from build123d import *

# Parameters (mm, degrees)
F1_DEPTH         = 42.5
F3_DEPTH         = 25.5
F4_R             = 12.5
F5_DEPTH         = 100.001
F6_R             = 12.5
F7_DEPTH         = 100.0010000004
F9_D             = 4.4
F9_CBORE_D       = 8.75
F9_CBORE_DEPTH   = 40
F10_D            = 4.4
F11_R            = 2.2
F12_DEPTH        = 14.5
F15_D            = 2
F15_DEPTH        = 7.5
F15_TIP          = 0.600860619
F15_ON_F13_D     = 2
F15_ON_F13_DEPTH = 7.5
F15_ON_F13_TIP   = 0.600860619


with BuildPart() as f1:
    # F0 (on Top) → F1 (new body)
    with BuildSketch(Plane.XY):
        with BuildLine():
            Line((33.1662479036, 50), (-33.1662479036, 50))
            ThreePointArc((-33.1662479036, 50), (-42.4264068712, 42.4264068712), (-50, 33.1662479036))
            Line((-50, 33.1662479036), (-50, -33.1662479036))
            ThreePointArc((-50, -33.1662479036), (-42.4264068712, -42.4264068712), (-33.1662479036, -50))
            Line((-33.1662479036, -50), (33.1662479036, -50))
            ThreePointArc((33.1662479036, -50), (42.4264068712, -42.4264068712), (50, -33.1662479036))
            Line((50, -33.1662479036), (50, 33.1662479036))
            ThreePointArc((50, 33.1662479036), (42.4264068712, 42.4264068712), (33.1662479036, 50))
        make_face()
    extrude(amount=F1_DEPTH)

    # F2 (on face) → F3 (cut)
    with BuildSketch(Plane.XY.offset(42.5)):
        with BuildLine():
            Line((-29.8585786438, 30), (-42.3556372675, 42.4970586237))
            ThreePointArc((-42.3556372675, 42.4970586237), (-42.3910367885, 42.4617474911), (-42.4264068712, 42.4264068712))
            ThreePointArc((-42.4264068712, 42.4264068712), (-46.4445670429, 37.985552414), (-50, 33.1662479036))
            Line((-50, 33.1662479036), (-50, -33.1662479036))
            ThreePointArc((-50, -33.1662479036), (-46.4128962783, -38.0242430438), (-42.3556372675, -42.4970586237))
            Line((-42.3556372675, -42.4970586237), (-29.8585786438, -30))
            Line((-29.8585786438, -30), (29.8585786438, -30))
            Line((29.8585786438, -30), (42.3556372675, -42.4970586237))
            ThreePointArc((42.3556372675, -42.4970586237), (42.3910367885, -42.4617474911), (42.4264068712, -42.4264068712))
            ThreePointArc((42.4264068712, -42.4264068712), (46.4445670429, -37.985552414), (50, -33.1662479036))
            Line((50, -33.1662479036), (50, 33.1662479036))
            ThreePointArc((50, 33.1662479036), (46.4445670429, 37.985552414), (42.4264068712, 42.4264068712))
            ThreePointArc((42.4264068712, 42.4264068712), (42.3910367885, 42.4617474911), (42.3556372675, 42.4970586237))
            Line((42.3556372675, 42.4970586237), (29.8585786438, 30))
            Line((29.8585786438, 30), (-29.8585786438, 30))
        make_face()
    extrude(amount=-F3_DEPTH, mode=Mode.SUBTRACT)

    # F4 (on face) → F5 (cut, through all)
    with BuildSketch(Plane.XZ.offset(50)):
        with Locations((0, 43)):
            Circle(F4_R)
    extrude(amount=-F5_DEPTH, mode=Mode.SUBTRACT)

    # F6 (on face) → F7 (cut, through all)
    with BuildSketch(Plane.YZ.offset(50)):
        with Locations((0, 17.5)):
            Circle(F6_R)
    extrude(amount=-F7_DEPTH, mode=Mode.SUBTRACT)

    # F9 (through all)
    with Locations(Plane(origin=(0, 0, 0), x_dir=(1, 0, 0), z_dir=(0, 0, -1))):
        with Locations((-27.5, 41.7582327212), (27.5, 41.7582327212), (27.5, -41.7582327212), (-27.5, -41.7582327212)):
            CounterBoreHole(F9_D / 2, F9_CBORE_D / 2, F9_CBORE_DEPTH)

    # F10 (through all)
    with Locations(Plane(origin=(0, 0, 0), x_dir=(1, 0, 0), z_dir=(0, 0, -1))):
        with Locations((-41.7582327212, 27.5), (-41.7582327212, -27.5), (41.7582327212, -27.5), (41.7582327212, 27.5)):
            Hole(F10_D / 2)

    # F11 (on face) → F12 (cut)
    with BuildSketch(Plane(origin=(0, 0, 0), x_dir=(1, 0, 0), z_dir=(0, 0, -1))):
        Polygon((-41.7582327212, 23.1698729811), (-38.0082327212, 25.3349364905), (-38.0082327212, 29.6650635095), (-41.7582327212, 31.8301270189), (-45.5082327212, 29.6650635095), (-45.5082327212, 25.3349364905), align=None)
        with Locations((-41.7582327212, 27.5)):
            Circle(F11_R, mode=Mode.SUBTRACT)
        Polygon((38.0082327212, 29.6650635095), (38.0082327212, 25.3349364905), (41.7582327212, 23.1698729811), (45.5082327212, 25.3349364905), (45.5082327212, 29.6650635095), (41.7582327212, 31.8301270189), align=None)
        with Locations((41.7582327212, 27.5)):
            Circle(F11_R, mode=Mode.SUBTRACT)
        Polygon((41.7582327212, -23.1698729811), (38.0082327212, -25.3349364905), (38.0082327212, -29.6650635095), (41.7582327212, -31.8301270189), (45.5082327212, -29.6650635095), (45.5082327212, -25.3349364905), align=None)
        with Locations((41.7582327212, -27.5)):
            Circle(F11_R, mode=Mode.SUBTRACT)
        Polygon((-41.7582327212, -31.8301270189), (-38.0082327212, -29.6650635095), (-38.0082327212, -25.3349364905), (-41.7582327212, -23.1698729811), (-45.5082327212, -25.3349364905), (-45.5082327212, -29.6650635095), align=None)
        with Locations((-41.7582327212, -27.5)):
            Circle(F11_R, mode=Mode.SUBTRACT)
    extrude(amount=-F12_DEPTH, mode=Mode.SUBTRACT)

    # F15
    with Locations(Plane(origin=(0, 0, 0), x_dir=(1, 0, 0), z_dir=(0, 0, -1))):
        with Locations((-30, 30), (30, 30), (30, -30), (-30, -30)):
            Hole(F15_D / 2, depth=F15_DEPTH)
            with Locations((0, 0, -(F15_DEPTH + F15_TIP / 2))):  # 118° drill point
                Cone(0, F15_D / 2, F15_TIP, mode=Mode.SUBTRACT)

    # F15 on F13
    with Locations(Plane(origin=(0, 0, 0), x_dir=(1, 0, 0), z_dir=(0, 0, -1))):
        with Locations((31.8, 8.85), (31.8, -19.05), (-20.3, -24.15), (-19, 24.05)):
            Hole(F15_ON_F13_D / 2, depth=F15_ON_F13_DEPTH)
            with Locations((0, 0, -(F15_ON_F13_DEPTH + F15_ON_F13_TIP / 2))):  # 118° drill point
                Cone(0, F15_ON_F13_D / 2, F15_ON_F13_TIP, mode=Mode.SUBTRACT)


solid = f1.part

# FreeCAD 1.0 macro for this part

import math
import FreeCAD as App
import Part
import Sketcher
from FreeCAD import Vector
Q = App.Units.Quantity


def add_polygon(sketch, points):
    """Adds a closed chain of lines whose ends are joined by coincident constraints."""
    first, n = sketch.GeometryCount, len(points)
    for a, b in zip(points, points[1:] + points[:1]):
        sketch.addGeometry(Part.LineSegment(App.Vector(*a, 0), App.Vector(*b, 0)), False)
    for i in range(n):
        sketch.addConstraint(Sketcher.Constraint("Coincident", first + i, 2, first + (i + 1) % n, 1))

doc = App.newDocument("Part")
body = doc.addObject("PartDesign::Body", "Body")

sketch1 = doc.addObject("Sketcher::SketchObject", "Sketch")
body.addObject(sketch1)
sketch1.AttachmentSupport = (doc.XY_Plane, [""])
sketch1.MapMode = "FlatFace"
sketch1.addGeometry(Part.LineSegment(Vector(33, 50, 0), Vector(-33, 50, 0)), False)
sketch1.addGeometry(Part.ArcOfCircle(Part.Circle(Vector(0, 0, 0), Vector(0, 0, 1), 60), math.radians(124), math.radians(146)), False)
sketch1.addGeometry(Part.LineSegment(Vector(-50, 33, 0), Vector(-50, -33, 0)), False)
sketch1.addGeometry(Part.ArcOfCircle(Part.Circle(Vector(0, 0, 0), Vector(0, 0, 1), 60), math.radians(-146), math.radians(-124)), False)
sketch1.addGeometry(Part.LineSegment(Vector(-33, -50, 0), Vector(33, -50, 0)), False)
sketch1.addGeometry(Part.ArcOfCircle(Part.Circle(Vector(0, 0, 0), Vector(0, 0, 1), 60), math.radians(-56), math.radians(-34)), False)
sketch1.addGeometry(Part.LineSegment(Vector(50, -33, 0), Vector(50, 33, 0)), False)
sketch1.addGeometry(Part.ArcOfCircle(Part.Circle(Vector(0, 0, 0), Vector(0, 0, 1), 60), math.radians(34), math.radians(56)), False)
sketch1.addConstraint(Sketcher.Constraint("Coincident", 0, 2, 1, 1))
sketch1.addConstraint(Sketcher.Constraint("Coincident", 1, 2, 2, 1))
sketch1.addConstraint(Sketcher.Constraint("Coincident", 2, 2, 3, 1))
sketch1.addConstraint(Sketcher.Constraint("Coincident", 3, 2, 4, 1))
sketch1.addConstraint(Sketcher.Constraint("Coincident", 4, 2, 5, 1))
sketch1.addConstraint(Sketcher.Constraint("Coincident", 5, 2, 6, 1))
sketch1.addConstraint(Sketcher.Constraint("Coincident", 6, 2, 7, 1))
sketch1.addConstraint(Sketcher.Constraint("Coincident", 7, 2, 0, 1))
sketch1.addConstraint(Sketcher.Constraint("Horizontal", 0))
sketch1.addConstraint(Sketcher.Constraint("Vertical", 2))
sketch1.addConstraint(Sketcher.Constraint("Horizontal", 4))
sketch1.addConstraint(Sketcher.Constraint("Vertical", 6))
sketch1.addConstraint(Sketcher.Constraint("Coincident", 1, 3, -1, 1))
sketch1.addConstraint(Sketcher.Constraint("Coincident", 3, 3, -1, 1))
sketch1.addConstraint(Sketcher.Constraint("Coincident", 5, 3, -1, 1))
sketch1.addConstraint(Sketcher.Constraint("Coincident", 7, 3, -1, 1))
sketch1.addConstraint(Sketcher.Constraint("Equal", 1, 3))
sketch1.addConstraint(Sketcher.Constraint("Equal", 3, 5))
sketch1.addConstraint(Sketcher.Constraint("Equal", 5, 7))
sketch1.addConstraint(Sketcher.Constraint("Horizontal", 2, 2, 5, 2))
sketch1.addConstraint(Sketcher.Constraint("Vertical", 0, 2, 3, 2))
sketch1.addConstraint(Sketcher.Constraint("Equal", 4, 2))
sketch1.addConstraint(Sketcher.Constraint("Radius", 1, Q("60 mm")))
sketch1.addConstraint(Sketcher.Constraint("DistanceY", -1, 1, 0, 2, Q("50 mm")))
pad1 = doc.addObject("PartDesign::Pad", "Pad")
body.addObject(pad1)
pad1.Profile = sketch1
pad1.Length = 42.5

sketch2 = doc.addObject("Sketcher::SketchObject", "Sketch001")
body.addObject(sketch2)
sketch2.AttachmentSupport = (doc.XY_Plane, [""])
sketch2.MapMode = "FlatFace"
sketch2.AttachmentOffset = App.Placement(Vector(0, 0, 42.5), App.Rotation())
sketch2.addGeometry(Part.LineSegment(Vector(-29.86, 30, 0), Vector(-42.36, 42.5, 0)), False)
sketch2.addGeometry(Part.ArcOfCircle(Part.Circle(Vector(0, 0, 0), Vector(0, 0, 1), 60), math.radians(134.9), math.radians(135)), False)
sketch2.addGeometry(Part.ArcOfCircle(Part.Circle(Vector(0, 0, 0), Vector(0, 0, 1), 60), math.radians(135), math.radians(146.44)), False)
sketch2.addGeometry(Part.LineSegment(Vector(-50, 33.17, 0), Vector(-50, -33.17, 0)), False)
sketch2.addGeometry(Part.ArcOfCircle(Part.Circle(Vector(0, 0, 0), Vector(0, 0, 1), 60), math.radians(-146.44), math.radians(-134.9)), False)
sketch2.addGeometry(Part.LineSegment(Vector(-42.36, -42.5, 0), Vector(-29.86, -30, 0)), False)
sketch2.addGeometry(Part.LineSegment(Vector(-29.86, -30, 0), Vector(29.86, -30, 0)), False)
sketch2.addGeometry(Part.LineSegment(Vector(29.86, -30, 0), Vector(42.36, -42.5, 0)), False)
sketch2.addGeometry(Part.ArcOfCircle(Part.Circle(Vector(0, 0, 0), Vector(0, 0, 1), 60), math.radians(-45.1), math.radians(-45)), False)
sketch2.addGeometry(Part.ArcOfCircle(Part.Circle(Vector(0, 0, 0), Vector(0, 0, 1), 60), math.radians(-45), math.radians(-33.56)), False)
sketch2.addGeometry(Part.LineSegment(Vector(50, -33.17, 0), Vector(50, 33.17, 0)), False)
sketch2.addGeometry(Part.ArcOfCircle(Part.Circle(Vector(0, 0, 0), Vector(0, 0, 1), 60), math.radians(33.56), math.radians(45)), False)
sketch2.addGeometry(Part.ArcOfCircle(Part.Circle(Vector(0, 0, 0), Vector(0, 0, 1), 60), math.radians(45), math.radians(45.1)), False)
sketch2.addGeometry(Part.LineSegment(Vector(42.36, 42.5, 0), Vector(29.86, 30, 0)), False)
sketch2.addGeometry(Part.LineSegment(Vector(29.86, 30, 0), Vector(-29.86, 30, 0)), False)
sketch2.addConstraint(Sketcher.Constraint("Coincident", 0, 2, 1, 1))
sketch2.addConstraint(Sketcher.Constraint("Tangent", 1, 2, 2, 1))
sketch2.addConstraint(Sketcher.Constraint("Coincident", 2, 2, 3, 1))
sketch2.addConstraint(Sketcher.Constraint("Coincident", 3, 2, 4, 1))
sketch2.addConstraint(Sketcher.Constraint("Coincident", 4, 2, 5, 1))
sketch2.addConstraint(Sketcher.Constraint("Coincident", 5, 2, 6, 1))
sketch2.addConstraint(Sketcher.Constraint("Coincident", 6, 2, 7, 1))
sketch2.addConstraint(Sketcher.Constraint("Coincident", 7, 2, 8, 1))
sketch2.addConstraint(Sketcher.Constraint("Tangent", 8, 2, 9, 1))
sketch2.addConstraint(Sketcher.Constraint("Coincident", 9, 2, 10, 1))
sketch2.addConstraint(Sketcher.Constraint("Coincident", 10, 2, 11, 1))
sketch2.addConstraint(Sketcher.Constraint("Tangent", 11, 2, 12, 1))
sketch2.addConstraint(Sketcher.Constraint("Coincident", 12, 2, 13, 1))
sketch2.addConstraint(Sketcher.Constraint("Coincident", 13, 2, 14, 1))
sketch2.addConstraint(Sketcher.Constraint("Coincident", 14, 2, 0, 1))
sketch2.addConstraint(Sketcher.Constraint("Vertical", 3))
sketch2.addConstraint(Sketcher.Constraint("Horizontal", 6))
sketch2.addConstraint(Sketcher.Constraint("Vertical", 10))
sketch2.addConstraint(Sketcher.Constraint("Horizontal", 14))
sketch2.addConstraint(Sketcher.Constraint("Coincident", 1, 3, -1, 1))
sketch2.addConstraint(Sketcher.Constraint("Coincident", 4, 3, -1, 1))
sketch2.addConstraint(Sketcher.Constraint("Coincident", 8, 3, -1, 1))
sketch2.addConstraint(Sketcher.Constraint("Coincident", 11, 3, -1, 1))
sketch2.addConstraint(Sketcher.Constraint("Equal", 2, 4))
sketch2.addConstraint(Sketcher.Constraint("Equal", 1, 8))
sketch2.addConstraint(Sketcher.Constraint("Equal", 4, 9))
sketch2.addConstraint(Sketcher.Constraint("Equal", 9, 11))
sketch2.addConstraint(Sketcher.Constraint("Equal", 8, 12))
sketch2.addConstraint(Sketcher.Constraint("Symmetric", 5, 2, 13, 2, -1, 1))
sketch2.addConstraint(Sketcher.Constraint("Symmetric", 4, 2, 7, 2, -2))
sketch2.addConstraint(Sketcher.Constraint("Perpendicular", 0, 5))
sketch2.addConstraint(Sketcher.Constraint("Perpendicular", 5, 7))
sketch2.addConstraint(Sketcher.Constraint("Perpendicular", 7, 13))
sketch2.addConstraint(Sketcher.Constraint("Horizontal", 3, 2, 9, 2))
sketch2.addConstraint(Sketcher.Constraint("Horizontal", 1, 2, 11, 2))
sketch2.addConstraint(Sketcher.Constraint("Horizontal", 0, 2, 12, 2))
sketch2.addConstraint(Sketcher.Constraint("Vertical", 8, 2, 11, 2))
sketch2.addConstraint(Sketcher.Constraint("Vertical", 6, 2, 13, 2))
sketch2.addConstraint(Sketcher.Constraint("Radius", 2, Q("60 mm")))
sketch2.addConstraint(Sketcher.Constraint("DistanceX", 2, 2, -1, 1, Q("50 mm")))
sketch2.addConstraint(Sketcher.Constraint("DistanceY", 5, 2, -1, 1, Q("30 mm")))
sketch2.addConstraint(Sketcher.Constraint("Distance", 0, Q("17.67351 mm")))
sketch2.addConstraint(Sketcher.Constraint("DistanceX", 1, 2, 0, 2, Q("0.07077 mm")))
pocket1 = doc.addObject("PartDesign::Pocket", "Pocket")
body.addObject(pocket1)
pocket1.Profile = sketch2
pocket1.Length = 25.5

sketch3 = doc.addObject("Sketcher::SketchObject", "Sketch002")
body.addObject(sketch3)
sketch3.AttachmentSupport = (doc.XZ_Plane, [""])
sketch3.MapMode = "FlatFace"
sketch3.AttachmentOffset = App.Placement(Vector(0, 0, 50), App.Rotation())
sketch3.addGeometry(Part.Circle(Vector(0, 43, 0), Vector(0, 0, 1), 12), False)
sketch3.addConstraint(Sketcher.Constraint("PointOnObject", 0, 3, -2))
sketch3.addConstraint(Sketcher.Constraint("Diameter", 0, Q("25 mm")))
sketch3.addConstraint(Sketcher.Constraint("DistanceY", -1, 1, 0, 3, Q("43 mm")))
pocket2 = doc.addObject("PartDesign::Pocket", "Pocket001")
body.addObject(pocket2)
pocket2.Profile = sketch3
pocket2.Type = "ThroughAll"

sketch4 = doc.addObject("Sketcher::SketchObject", "Sketch003")
body.addObject(sketch4)
sketch4.AttachmentSupport = (doc.YZ_Plane, [""])
sketch4.MapMode = "FlatFace"
sketch4.AttachmentOffset = App.Placement(Vector(0, 0, 50), App.Rotation())
sketch4.addGeometry(Part.Circle(Vector(0, 18, 0), Vector(0, 0, 1), 12), False)
sketch4.addConstraint(Sketcher.Constraint("PointOnObject", 0, 3, -2))
sketch4.addConstraint(Sketcher.Constraint("Diameter", 0, Q("25 mm")))
sketch4.addConstraint(Sketcher.Constraint("DistanceY", -1, 1, 0, 3, Q("17.5 mm")))
pocket3 = doc.addObject("PartDesign::Pocket", "Pocket002")
body.addObject(pocket3)
pocket3.Profile = sketch4
pocket3.Type = "ThroughAll"

sketch5 = doc.addObject("Sketcher::SketchObject", "Sketch004")
body.addObject(sketch5)
sketch5.AttachmentSupport = (doc.XY_Plane, [""])
sketch5.MapMode = "FlatFace"
sketch5.addGeometry(Part.Circle(Vector(-27.5, -41.8, 0), Vector(0, 0, 1), 2.2), False)
sketch5.addGeometry(Part.Circle(Vector(27.5, -41.8, 0), Vector(0, 0, 1), 2.2), False)
sketch5.addGeometry(Part.Circle(Vector(27.5, 41.8, 0), Vector(0, 0, 1), 2.2), False)
sketch5.addGeometry(Part.Circle(Vector(-27.5, 41.8, 0), Vector(0, 0, 1), 2.2), False)
sketch5.addConstraint(Sketcher.Constraint("Equal", 0, 1))
sketch5.addConstraint(Sketcher.Constraint("Equal", 1, 2))
sketch5.addConstraint(Sketcher.Constraint("Equal", 2, 3))
sketch5.addConstraint(Sketcher.Constraint("Symmetric", 0, 3, 2, 3, -1, 1))
sketch5.addConstraint(Sketcher.Constraint("Symmetric", 1, 3, 3, 3, -1, 1))
sketch5.addConstraint(Sketcher.Constraint("Symmetric", 0, 3, 1, 3, -2))
sketch5.addConstraint(Sketcher.Constraint("Diameter", 0, Q("4.4 mm")))
sketch5.addConstraint(Sketcher.Constraint("DistanceX", 0, 3, 1, 3, Q("55 mm")))
sketch5.addConstraint(Sketcher.Constraint("DistanceY", 0, 3, -1, 1, Q("41.758233 mm")))
doc.recompute()
hole = doc.addObject("PartDesign::Hole", "Hole")
body.addObject(hole)
hole.Profile = sketch5
hole.ThreadType = "None"
hole.Diameter = 4.4
hole.DepthType = "ThroughAll"
hole.HoleCutType = "Counterbore"
hole.HoleCutDiameter = 8.75
hole.HoleCutDepth = 40
hole.Reversed = True

sketch6 = doc.addObject("Sketcher::SketchObject", "Sketch005")
body.addObject(sketch6)
sketch6.AttachmentSupport = (doc.XY_Plane, [""])
sketch6.MapMode = "FlatFace"
sketch6.addGeometry(Part.Circle(Vector(-41.8, -27.5, 0), Vector(0, 0, 1), 2.2), False)
sketch6.addGeometry(Part.Circle(Vector(-41.8, 27.5, 0), Vector(0, 0, 1), 2.2), False)
sketch6.addGeometry(Part.Circle(Vector(41.8, 27.5, 0), Vector(0, 0, 1), 2.2), False)
sketch6.addGeometry(Part.Circle(Vector(41.8, -27.5, 0), Vector(0, 0, 1), 2.2), False)
sketch6.addConstraint(Sketcher.Constraint("Equal", 0, 1))
sketch6.addConstraint(Sketcher.Constraint("Equal", 1, 2))
sketch6.addConstraint(Sketcher.Constraint("Equal", 2, 3))
sketch6.addConstraint(Sketcher.Constraint("Symmetric", 0, 3, 2, 3, -1, 1))
sketch6.addConstraint(Sketcher.Constraint("Symmetric", 1, 3, 3, 3, -1, 1))
sketch6.addConstraint(Sketcher.Constraint("Symmetric", 1, 3, 2, 3, -2))
sketch6.addConstraint(Sketcher.Constraint("Diameter", 0, Q("4.4 mm")))
sketch6.addConstraint(Sketcher.Constraint("DistanceY", 0, 3, 1, 3, Q("55 mm")))
sketch6.addConstraint(Sketcher.Constraint("DistanceX", 0, 3, -1, 1, Q("41.758233 mm")))
doc.recompute()
hole2 = doc.addObject("PartDesign::Hole", "Hole001")
body.addObject(hole2)
hole2.Profile = sketch6
hole2.ThreadType = "None"
hole2.Diameter = 4.4
hole2.DepthType = "ThroughAll"
hole2.Reversed = True

sketch7 = doc.addObject("Sketcher::SketchObject", "Sketch006")
body.addObject(sketch7)
sketch7.AttachmentSupport = (doc.XY_Plane, [""])
sketch7.MapMode = "FlatFace"
add_polygon(sketch7, [(-41.8, -23.2), (-38, -25.3), (-38, -29.7), (-41.8, -31.8), (-45.5, -29.7), (-45.5, -25.3)])
sketch7.addGeometry(Part.Circle(Vector(-41.8, -27.5, 0), Vector(0, 0, 1), 2.2), False)
add_polygon(sketch7, [(38, -29.7), (38, -25.3), (41.8, -23.2), (45.5, -25.3), (45.5, -29.7), (41.8, -31.8)])
sketch7.addGeometry(Part.Circle(Vector(41.8, -27.5, 0), Vector(0, 0, 1), 2.2), False)
add_polygon(sketch7, [(41.8, 23.2), (38, 25.3), (38, 29.7), (41.8, 31.8), (45.5, 29.7), (45.5, 25.3)])
sketch7.addGeometry(Part.Circle(Vector(41.8, 27.5, 0), Vector(0, 0, 1), 2.2), False)
add_polygon(sketch7, [(-41.8, 31.8), (-38, 29.7), (-38, 25.3), (-41.8, 23.2), (-45.5, 25.3), (-45.5, 29.7)])
sketch7.addGeometry(Part.Circle(Vector(-41.8, 27.5, 0), Vector(0, 0, 1), 2.2), False)
sketch7.addConstraint(Sketcher.Constraint("Vertical", 1))
sketch7.addConstraint(Sketcher.Constraint("Vertical", 4))
sketch7.addConstraint(Sketcher.Constraint("Vertical", 7))
sketch7.addConstraint(Sketcher.Constraint("Vertical", 10))
sketch7.addConstraint(Sketcher.Constraint("Vertical", 15))
sketch7.addConstraint(Sketcher.Constraint("Vertical", 18))
sketch7.addConstraint(Sketcher.Constraint("Vertical", 22))
sketch7.addConstraint(Sketcher.Constraint("Vertical", 25))
sketch7.addConstraint(Sketcher.Constraint("Equal", 6, 13))
sketch7.addConstraint(Sketcher.Constraint("Equal", 13, 20))
sketch7.addConstraint(Sketcher.Constraint("Equal", 20, 27))
sketch7.addConstraint(Sketcher.Constraint("Symmetric", 6, 3, 20, 3, -1, 1))
sketch7.addConstraint(Sketcher.Constraint("Symmetric", 13, 3, 27, 3, -1, 1))
sketch7.addConstraint(Sketcher.Constraint("Symmetric", 0, 2, 14, 2, -1, 1))
sketch7.addConstraint(Sketcher.Constraint("Symmetric", 2, 2, 16, 2, -1, 1))
sketch7.addConstraint(Sketcher.Constraint("Symmetric", 3, 2, 17, 2, -1, 1))
sketch7.addConstraint(Sketcher.Constraint("Symmetric", 5, 2, 19, 2, -1, 1))
sketch7.addConstraint(Sketcher.Constraint("Symmetric", 12, 2, 21, 2, -1, 1))
sketch7.addConstraint(Sketcher.Constraint("Symmetric", 8, 2, 23, 2, -1, 1))
sketch7.addConstraint(Sketcher.Constraint("Symmetric", 9, 2, 24, 2, -1, 1))
sketch7.addConstraint(Sketcher.Constraint("Symmetric", 11, 2, 26, 2, -1, 1))
sketch7.addConstraint(Sketcher.Constraint("Symmetric", 6, 3, 13, 3, -2))
sketch7.addConstraint(Sketcher.Constraint("Symmetric", 0, 2, 7, 2, -2))
sketch7.addConstraint(Sketcher.Constraint("Symmetric", 5, 2, 8, 2, -2))
sketch7.addConstraint(Sketcher.Constraint("Symmetric", 4, 2, 9, 2, -2))
sketch7.addConstraint(Sketcher.Constraint("Symmetric", 2, 2, 11, 2, -2))
sketch7.addConstraint(Sketcher.Constraint("Parallel", 0, 3))
sketch7.addConstraint(Sketcher.Constraint("Parallel", 2, 5))
sketch7.addConstraint(Sketcher.Constraint("Parallel", 5, 8))
sketch7.addConstraint(Sketcher.Constraint("Parallel", 8, 11))
sketch7.addConstraint(Sketcher.Constraint("Parallel", 9, 12))
sketch7.addConstraint(Sketcher.Constraint("Parallel", 11, 16))
sketch7.addConstraint(Sketcher.Constraint("Parallel", 16, 19))
sketch7.addConstraint(Sketcher.Constraint("Parallel", 19, 23))
sketch7.addConstraint(Sketcher.Constraint("Parallel", 23, 26))
sketch7.addConstraint(Sketcher.Constraint("Horizontal", 1, 2, 3, 2))
sketch7.addConstraint(Sketcher.Constraint("Horizontal", 0, 2, 4, 2))
sketch7.addConstraint(Sketcher.Constraint("Vertical", 27, 3, 2, 2))
sketch7.addConstraint(Sketcher.Constraint("Diameter", 6, Q("4.4 mm")))
sketch7.addConstraint(Sketcher.Constraint("Angle", 0, Q("-30 deg")))
sketch7.addConstraint(Sketcher.Constraint("DistanceY", 13, 3, 20, 3, Q("55 mm")))
sketch7.addConstraint(Sketcher.Constraint("DistanceY", 7, 2, 15, 2, Q("55 mm")))
sketch7.addConstraint(Sketcher.Constraint("DistanceX", 3, 2, 1, 2, Q("7.5 mm")))
sketch7.addConstraint(Sketcher.Constraint("DistanceY", 1, 2, 1, 1, Q("4.330127 mm")))
sketch7.addConstraint(Sketcher.Constraint("DistanceX", 6, 3, -1, 1, Q("41.758233 mm")))
pocket4 = doc.addObject("PartDesign::Pocket", "Pocket003")
body.addObject(pocket4)
pocket4.Profile = sketch7
pocket4.Length = 14.5
pocket4.Reversed = True

sketch8 = doc.addObject("Sketcher::SketchObject", "Sketch007")
body.addObject(sketch8)
sketch8.AttachmentSupport = (doc.XY_Plane, [""])
sketch8.MapMode = "FlatFace"
sketch8.addGeometry(Part.Circle(Vector(-30, -30, 0), Vector(0, 0, 1), 1), False)
sketch8.addGeometry(Part.Circle(Vector(30, -30, 0), Vector(0, 0, 1), 1), False)
sketch8.addGeometry(Part.Circle(Vector(30, 30, 0), Vector(0, 0, 1), 1), False)
sketch8.addGeometry(Part.Circle(Vector(-30, 30, 0), Vector(0, 0, 1), 1), False)
sketch8.addConstraint(Sketcher.Constraint("Equal", 0, 1))
sketch8.addConstraint(Sketcher.Constraint("Equal", 1, 2))
sketch8.addConstraint(Sketcher.Constraint("Equal", 2, 3))
sketch8.addConstraint(Sketcher.Constraint("Symmetric", 0, 3, 2, 3, -1, 1))
sketch8.addConstraint(Sketcher.Constraint("Symmetric", 1, 3, 3, 3, -1, 1))
sketch8.addConstraint(Sketcher.Constraint("Symmetric", 0, 3, 1, 3, -2))
sketch8.addConstraint(Sketcher.Constraint("Diameter", 0, Q("2 mm")))
sketch8.addConstraint(Sketcher.Constraint("DistanceX", 0, 3, -1, 1, Q("30 mm")))
sketch8.addConstraint(Sketcher.Constraint("DistanceY", 0, 3, -1, 1, Q("30 mm")))
doc.recompute()
hole3 = doc.addObject("PartDesign::Hole", "Hole002")
body.addObject(hole3)
hole3.Profile = sketch8
hole3.ThreadType = "None"
hole3.Diameter = 2
hole3.DepthType = "Dimension"
hole3.Depth = 7.5
hole3.DrillPoint = "Angled"
hole3.DrillPointAngle = 118
hole3.Reversed = True

sketch9 = doc.addObject("Sketcher::SketchObject", "Sketch008")
body.addObject(sketch9)
sketch9.AttachmentSupport = (doc.XY_Plane, [""])
sketch9.MapMode = "FlatFace"
sketch9.addGeometry(Part.Circle(Vector(31.8, -8.8, 0), Vector(0, 0, 1), 1), False)
sketch9.addGeometry(Part.Circle(Vector(31.8, 19.1, 0), Vector(0, 0, 1), 1), False)
sketch9.addGeometry(Part.Circle(Vector(-20.3, 24.1, 0), Vector(0, 0, 1), 1), False)
sketch9.addGeometry(Part.Circle(Vector(-19, -24.1, 0), Vector(0, 0, 1), 1), False)
sketch9.addConstraint(Sketcher.Constraint("Equal", 0, 1))
sketch9.addConstraint(Sketcher.Constraint("Equal", 1, 2))
sketch9.addConstraint(Sketcher.Constraint("Equal", 2, 3))
sketch9.addConstraint(Sketcher.Constraint("Vertical", 0, 3, 1, 3))
sketch9.addConstraint(Sketcher.Constraint("Diameter", 0, Q("2 mm")))
sketch9.addConstraint(Sketcher.Constraint("DistanceX", 3, 3, -1, 1, Q("19 mm")))
sketch9.addConstraint(Sketcher.Constraint("DistanceY", 0, 3, 2, 3, Q("33 mm")))
sketch9.addConstraint(Sketcher.Constraint("DistanceX", -1, 1, 0, 3, Q("31.8 mm")))
sketch9.addConstraint(Sketcher.Constraint("DistanceX", 2, 3, -1, 1, Q("20.3 mm")))
sketch9.addConstraint(Sketcher.Constraint("DistanceY", 0, 3, 1, 3, Q("27.9 mm")))
sketch9.addConstraint(Sketcher.Constraint("DistanceY", 3, 3, 2, 3, Q("48.2 mm")))
sketch9.addConstraint(Sketcher.Constraint("DistanceY", 0, 3, -1, 1, Q("8.85 mm")))
doc.recompute()
hole4 = doc.addObject("PartDesign::Hole", "Hole003")
body.addObject(hole4)
hole4.Profile = sketch9
hole4.ThreadType = "None"
hole4.Diameter = 2
hole4.DepthType = "Dimension"
hole4.Depth = 7.5
hole4.DrillPoint = "Angled"
hole4.DrillPointAngle = 118
hole4.Reversed = True

doc.recompute()
